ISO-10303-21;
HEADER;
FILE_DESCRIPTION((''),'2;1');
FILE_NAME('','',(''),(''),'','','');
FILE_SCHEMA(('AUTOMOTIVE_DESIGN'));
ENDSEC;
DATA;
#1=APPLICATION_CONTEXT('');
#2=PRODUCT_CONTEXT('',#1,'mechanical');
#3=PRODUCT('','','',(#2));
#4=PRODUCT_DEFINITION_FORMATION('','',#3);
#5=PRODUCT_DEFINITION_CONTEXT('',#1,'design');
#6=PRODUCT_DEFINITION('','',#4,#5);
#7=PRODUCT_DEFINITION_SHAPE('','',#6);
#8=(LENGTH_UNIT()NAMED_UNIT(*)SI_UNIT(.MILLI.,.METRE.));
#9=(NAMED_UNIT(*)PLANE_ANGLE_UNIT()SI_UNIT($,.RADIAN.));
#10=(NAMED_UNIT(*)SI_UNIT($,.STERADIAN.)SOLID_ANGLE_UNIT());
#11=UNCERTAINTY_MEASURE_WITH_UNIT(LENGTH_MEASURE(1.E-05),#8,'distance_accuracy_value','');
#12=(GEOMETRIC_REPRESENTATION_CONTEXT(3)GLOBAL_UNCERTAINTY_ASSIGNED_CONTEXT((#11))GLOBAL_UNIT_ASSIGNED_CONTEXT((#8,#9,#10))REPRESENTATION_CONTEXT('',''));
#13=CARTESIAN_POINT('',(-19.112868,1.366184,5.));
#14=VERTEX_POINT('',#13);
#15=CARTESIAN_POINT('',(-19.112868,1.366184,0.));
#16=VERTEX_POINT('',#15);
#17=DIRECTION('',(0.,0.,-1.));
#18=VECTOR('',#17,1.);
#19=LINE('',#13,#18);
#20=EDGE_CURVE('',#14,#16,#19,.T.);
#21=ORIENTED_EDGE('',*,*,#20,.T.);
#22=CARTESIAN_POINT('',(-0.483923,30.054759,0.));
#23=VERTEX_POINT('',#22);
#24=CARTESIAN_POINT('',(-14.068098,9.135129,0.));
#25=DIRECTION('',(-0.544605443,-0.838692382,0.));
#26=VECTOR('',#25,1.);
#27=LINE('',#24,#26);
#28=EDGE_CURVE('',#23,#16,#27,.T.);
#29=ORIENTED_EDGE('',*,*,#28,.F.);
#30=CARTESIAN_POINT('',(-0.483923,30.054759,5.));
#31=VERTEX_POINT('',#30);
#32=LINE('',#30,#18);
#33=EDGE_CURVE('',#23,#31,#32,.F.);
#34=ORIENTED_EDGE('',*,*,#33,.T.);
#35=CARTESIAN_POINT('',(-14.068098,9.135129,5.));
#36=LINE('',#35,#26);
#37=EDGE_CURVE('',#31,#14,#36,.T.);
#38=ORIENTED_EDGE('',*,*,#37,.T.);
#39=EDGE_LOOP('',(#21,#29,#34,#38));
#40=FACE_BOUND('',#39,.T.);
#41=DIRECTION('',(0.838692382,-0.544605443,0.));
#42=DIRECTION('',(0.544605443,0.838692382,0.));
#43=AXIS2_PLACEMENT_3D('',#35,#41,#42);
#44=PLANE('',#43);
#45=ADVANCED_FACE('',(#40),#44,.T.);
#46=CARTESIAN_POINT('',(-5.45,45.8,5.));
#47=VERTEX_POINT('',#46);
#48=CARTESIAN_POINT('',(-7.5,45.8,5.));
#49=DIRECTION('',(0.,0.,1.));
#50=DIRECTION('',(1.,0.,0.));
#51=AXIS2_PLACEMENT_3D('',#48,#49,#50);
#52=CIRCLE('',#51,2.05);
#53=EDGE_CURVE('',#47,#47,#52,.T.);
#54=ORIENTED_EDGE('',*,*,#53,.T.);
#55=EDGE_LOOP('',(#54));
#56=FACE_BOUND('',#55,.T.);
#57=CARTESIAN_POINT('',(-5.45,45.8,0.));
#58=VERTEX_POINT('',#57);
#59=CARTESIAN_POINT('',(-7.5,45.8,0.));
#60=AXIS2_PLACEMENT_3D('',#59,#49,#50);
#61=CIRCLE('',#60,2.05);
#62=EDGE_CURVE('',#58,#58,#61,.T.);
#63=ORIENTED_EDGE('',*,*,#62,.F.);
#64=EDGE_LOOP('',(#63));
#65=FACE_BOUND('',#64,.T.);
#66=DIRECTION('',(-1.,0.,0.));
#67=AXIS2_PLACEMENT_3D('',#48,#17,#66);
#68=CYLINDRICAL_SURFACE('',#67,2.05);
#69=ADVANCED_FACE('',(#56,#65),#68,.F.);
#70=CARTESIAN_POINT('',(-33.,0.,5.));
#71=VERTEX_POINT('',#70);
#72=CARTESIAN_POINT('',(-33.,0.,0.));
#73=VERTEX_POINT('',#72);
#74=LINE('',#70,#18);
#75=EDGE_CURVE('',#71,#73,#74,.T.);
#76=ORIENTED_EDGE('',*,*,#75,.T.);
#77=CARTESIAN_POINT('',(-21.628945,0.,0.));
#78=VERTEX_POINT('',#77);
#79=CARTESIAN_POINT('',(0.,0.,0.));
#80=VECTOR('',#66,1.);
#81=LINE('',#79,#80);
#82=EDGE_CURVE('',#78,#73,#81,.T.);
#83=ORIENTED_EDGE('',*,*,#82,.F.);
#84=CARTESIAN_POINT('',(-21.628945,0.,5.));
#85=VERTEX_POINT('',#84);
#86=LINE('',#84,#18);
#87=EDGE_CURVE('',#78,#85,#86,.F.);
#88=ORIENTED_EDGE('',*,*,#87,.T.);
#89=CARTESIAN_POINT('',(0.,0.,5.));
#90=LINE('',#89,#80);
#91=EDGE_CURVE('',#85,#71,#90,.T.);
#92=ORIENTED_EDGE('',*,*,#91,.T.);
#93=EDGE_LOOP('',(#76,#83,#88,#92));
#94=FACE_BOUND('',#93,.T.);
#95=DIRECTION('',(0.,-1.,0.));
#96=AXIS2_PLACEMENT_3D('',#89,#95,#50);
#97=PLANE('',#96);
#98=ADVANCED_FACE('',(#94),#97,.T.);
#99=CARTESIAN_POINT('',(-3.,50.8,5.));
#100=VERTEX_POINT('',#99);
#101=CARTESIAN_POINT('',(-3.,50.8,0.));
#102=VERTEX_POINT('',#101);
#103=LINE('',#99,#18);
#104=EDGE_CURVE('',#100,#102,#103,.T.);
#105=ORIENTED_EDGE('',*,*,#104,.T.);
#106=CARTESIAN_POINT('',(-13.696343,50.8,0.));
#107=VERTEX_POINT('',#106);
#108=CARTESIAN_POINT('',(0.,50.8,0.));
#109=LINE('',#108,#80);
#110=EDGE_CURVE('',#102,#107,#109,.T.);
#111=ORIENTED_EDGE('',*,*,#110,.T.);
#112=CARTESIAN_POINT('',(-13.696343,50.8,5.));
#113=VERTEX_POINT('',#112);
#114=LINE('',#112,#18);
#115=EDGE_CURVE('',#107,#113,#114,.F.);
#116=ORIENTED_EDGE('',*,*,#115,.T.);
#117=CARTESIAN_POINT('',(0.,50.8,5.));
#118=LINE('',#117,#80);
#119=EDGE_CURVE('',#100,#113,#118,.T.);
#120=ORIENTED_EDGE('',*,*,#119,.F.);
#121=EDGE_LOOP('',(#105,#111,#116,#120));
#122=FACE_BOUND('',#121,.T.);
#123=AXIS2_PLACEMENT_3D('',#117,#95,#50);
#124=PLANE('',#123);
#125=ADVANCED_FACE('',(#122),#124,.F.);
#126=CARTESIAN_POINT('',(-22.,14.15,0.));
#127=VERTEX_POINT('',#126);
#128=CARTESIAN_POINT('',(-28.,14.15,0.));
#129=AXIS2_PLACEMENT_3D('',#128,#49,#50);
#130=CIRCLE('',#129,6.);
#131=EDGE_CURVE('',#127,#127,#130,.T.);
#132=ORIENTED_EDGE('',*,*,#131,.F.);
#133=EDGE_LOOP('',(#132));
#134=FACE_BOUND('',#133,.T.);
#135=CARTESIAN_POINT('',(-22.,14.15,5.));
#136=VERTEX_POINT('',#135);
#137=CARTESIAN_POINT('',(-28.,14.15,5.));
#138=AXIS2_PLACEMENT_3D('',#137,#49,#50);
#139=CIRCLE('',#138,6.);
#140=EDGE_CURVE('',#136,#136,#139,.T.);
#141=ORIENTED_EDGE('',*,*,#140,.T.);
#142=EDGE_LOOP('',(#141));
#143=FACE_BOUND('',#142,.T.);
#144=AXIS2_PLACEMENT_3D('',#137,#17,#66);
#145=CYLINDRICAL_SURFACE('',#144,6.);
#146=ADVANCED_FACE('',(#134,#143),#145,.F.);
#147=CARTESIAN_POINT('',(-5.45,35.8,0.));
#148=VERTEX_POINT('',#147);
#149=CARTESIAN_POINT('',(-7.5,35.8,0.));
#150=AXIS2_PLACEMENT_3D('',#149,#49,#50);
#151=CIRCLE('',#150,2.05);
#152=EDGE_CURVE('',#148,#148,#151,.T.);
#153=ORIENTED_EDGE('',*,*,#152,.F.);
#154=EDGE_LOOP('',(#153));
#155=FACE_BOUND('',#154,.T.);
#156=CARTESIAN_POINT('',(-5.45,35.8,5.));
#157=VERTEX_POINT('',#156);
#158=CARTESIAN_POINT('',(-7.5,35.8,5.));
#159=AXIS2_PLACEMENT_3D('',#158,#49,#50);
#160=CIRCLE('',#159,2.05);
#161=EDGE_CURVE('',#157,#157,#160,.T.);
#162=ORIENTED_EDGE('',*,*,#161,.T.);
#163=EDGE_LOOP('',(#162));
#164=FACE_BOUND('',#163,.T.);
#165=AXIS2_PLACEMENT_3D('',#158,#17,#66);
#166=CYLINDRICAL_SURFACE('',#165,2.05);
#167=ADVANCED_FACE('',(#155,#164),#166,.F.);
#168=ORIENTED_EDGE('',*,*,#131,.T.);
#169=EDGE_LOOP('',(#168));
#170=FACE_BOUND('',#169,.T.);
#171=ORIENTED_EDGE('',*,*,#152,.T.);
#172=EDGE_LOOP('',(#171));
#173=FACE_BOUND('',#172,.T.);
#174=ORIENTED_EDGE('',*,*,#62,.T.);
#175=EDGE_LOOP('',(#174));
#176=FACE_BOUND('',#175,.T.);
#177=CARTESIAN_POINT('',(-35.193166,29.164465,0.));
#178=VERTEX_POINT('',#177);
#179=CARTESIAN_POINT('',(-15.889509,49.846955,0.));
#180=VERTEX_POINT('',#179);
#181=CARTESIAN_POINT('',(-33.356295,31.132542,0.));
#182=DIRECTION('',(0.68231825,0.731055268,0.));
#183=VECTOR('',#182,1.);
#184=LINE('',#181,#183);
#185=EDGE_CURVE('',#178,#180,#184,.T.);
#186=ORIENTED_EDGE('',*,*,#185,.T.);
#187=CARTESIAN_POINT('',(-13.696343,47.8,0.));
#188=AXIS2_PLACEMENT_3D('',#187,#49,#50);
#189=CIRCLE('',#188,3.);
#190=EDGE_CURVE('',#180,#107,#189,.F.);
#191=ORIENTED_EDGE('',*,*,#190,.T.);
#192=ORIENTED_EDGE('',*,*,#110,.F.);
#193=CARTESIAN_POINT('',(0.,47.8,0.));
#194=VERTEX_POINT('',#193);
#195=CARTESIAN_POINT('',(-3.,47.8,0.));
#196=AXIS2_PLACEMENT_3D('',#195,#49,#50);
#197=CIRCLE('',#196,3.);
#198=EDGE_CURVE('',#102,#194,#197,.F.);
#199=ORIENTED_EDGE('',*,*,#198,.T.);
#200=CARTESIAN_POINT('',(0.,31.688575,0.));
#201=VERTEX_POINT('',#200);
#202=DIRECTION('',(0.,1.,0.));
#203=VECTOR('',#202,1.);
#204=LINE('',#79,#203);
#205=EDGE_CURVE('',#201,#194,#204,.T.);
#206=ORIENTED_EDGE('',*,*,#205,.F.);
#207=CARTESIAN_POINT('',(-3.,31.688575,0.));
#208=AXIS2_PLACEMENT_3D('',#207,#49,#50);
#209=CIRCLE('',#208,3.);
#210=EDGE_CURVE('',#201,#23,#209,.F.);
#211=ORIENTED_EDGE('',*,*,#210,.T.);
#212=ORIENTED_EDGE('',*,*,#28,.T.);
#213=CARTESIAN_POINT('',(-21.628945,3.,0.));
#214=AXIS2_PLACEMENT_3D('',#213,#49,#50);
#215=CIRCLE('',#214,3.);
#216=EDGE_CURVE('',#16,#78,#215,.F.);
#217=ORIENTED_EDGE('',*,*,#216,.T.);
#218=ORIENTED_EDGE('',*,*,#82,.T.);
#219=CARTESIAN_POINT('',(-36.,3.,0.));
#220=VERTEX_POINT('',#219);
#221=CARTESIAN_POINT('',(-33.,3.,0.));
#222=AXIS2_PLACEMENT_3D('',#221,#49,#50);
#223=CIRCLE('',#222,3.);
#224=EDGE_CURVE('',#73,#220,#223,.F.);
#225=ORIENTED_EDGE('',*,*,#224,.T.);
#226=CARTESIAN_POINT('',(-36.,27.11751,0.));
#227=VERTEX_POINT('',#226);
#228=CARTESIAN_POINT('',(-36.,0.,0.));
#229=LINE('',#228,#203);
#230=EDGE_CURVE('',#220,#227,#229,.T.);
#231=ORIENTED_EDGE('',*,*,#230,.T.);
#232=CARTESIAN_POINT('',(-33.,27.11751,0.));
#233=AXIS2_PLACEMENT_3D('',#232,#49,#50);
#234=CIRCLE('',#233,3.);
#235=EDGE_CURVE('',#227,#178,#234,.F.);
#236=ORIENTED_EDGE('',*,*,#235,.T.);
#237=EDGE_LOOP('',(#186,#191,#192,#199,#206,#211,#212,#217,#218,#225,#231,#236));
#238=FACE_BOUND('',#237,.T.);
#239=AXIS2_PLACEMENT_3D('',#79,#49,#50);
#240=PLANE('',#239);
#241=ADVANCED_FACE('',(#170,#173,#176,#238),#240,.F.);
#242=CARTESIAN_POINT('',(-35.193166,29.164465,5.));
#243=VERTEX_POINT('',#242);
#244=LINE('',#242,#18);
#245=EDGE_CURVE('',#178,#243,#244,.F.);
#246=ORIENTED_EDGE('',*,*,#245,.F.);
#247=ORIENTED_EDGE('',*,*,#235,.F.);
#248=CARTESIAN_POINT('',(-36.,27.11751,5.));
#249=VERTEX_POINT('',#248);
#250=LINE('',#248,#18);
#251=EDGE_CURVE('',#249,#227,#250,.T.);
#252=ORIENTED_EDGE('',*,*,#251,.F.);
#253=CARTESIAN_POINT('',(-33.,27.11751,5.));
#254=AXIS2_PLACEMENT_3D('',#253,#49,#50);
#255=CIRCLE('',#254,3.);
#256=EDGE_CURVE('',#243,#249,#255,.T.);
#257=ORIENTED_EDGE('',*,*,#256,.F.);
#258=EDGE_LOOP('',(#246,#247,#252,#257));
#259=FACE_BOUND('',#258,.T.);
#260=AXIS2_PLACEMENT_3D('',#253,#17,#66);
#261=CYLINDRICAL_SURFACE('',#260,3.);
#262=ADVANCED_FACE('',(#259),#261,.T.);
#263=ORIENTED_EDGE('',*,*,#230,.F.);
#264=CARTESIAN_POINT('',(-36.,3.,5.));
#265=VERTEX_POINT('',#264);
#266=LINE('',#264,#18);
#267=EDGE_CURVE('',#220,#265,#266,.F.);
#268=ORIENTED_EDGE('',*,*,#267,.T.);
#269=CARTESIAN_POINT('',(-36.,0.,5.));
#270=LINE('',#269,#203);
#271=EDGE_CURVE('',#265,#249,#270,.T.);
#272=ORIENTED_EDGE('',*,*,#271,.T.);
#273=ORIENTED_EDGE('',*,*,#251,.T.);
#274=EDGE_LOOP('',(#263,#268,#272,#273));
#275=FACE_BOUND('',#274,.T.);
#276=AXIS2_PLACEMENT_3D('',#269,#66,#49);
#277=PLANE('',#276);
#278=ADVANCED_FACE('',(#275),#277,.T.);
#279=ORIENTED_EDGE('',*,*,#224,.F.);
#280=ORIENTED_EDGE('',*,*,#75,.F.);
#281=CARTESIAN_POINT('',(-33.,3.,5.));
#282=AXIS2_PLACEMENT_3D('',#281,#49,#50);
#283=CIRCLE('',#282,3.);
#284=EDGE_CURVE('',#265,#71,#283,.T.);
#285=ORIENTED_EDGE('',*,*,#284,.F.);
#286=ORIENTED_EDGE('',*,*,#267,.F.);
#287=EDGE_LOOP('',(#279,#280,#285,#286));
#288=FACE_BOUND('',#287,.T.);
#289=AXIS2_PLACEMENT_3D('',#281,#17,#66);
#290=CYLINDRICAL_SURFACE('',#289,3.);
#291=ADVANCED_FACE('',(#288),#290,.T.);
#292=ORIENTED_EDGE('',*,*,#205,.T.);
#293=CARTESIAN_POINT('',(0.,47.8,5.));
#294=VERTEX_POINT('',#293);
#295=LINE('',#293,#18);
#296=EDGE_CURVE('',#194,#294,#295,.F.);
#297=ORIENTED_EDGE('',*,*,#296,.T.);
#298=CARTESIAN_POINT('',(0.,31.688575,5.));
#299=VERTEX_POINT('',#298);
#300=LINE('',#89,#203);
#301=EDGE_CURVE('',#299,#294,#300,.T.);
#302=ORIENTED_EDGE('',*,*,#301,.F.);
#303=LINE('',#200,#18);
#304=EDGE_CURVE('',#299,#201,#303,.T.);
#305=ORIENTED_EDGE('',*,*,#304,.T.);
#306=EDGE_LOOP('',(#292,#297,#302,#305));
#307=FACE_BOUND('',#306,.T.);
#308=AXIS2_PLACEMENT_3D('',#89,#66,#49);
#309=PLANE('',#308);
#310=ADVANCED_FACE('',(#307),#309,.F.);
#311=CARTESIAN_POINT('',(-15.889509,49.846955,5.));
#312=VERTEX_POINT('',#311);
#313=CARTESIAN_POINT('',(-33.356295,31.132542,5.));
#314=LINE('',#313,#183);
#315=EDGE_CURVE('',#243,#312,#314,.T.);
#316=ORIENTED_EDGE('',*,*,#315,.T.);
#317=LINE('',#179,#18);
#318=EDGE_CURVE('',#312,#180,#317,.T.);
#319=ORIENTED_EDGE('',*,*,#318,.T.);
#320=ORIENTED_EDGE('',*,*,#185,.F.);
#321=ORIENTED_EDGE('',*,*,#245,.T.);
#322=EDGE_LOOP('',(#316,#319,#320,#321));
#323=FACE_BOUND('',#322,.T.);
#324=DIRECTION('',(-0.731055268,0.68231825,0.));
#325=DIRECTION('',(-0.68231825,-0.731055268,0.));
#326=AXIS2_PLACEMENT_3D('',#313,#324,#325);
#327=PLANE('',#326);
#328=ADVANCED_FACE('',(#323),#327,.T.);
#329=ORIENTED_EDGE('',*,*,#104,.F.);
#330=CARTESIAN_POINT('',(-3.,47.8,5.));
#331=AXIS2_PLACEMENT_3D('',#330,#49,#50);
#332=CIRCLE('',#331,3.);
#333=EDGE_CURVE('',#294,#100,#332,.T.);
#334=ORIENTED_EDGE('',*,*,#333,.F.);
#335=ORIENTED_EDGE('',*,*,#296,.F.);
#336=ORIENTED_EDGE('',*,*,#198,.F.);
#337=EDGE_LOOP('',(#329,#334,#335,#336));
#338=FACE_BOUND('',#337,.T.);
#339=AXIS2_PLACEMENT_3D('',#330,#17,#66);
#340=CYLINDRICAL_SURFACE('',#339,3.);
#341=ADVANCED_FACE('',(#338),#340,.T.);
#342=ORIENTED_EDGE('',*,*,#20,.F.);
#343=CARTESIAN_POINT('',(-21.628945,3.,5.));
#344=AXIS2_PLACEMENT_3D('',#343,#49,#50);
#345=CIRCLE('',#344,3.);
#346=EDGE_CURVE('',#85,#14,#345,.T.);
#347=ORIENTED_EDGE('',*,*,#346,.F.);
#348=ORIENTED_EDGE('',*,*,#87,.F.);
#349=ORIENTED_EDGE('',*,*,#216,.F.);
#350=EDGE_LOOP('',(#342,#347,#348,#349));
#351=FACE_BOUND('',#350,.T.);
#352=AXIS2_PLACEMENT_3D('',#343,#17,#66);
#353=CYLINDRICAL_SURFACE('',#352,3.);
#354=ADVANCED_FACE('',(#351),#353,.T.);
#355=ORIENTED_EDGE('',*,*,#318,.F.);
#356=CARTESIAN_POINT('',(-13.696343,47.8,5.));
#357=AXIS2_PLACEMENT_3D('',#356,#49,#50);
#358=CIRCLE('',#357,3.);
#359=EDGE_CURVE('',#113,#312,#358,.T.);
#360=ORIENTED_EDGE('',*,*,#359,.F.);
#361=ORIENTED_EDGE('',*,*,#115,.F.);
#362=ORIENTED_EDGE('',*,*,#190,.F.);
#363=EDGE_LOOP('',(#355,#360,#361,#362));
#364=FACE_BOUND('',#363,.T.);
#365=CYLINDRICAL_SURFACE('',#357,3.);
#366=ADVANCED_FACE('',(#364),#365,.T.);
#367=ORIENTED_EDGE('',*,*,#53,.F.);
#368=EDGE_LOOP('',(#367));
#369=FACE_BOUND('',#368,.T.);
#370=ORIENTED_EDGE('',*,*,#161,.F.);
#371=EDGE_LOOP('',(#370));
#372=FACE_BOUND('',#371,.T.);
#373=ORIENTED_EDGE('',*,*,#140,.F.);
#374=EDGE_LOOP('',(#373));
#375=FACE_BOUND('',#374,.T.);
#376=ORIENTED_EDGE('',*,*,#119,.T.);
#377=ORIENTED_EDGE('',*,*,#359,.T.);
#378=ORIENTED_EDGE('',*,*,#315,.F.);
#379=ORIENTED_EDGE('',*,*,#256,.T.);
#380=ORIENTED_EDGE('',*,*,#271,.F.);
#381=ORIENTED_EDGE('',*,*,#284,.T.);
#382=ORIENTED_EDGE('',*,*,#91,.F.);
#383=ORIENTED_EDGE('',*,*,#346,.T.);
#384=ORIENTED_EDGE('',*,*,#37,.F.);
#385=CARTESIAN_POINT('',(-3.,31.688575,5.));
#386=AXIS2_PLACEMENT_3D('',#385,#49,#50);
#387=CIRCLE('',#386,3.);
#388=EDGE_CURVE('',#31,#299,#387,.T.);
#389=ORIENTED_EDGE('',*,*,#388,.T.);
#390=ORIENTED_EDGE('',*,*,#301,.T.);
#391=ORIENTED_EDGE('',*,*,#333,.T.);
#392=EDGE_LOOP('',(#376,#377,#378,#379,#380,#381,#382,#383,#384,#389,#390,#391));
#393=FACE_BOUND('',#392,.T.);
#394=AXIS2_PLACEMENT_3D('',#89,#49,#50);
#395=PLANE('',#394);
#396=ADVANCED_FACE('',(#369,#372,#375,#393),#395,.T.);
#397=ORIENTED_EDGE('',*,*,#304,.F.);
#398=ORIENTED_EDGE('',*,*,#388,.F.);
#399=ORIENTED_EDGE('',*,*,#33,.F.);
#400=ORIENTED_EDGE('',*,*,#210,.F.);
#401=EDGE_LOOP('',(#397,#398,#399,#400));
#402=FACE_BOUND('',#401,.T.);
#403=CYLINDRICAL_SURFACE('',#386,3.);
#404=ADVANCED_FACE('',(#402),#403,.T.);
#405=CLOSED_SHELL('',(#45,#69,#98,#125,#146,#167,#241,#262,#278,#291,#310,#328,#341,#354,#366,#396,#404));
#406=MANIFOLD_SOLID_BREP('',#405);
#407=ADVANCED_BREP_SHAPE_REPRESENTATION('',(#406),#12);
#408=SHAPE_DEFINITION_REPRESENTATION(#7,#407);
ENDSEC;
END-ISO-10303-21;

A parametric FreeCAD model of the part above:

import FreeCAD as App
import Part
import Sketcher

V = App.Vector


def edges_at(feature, points):
    """Names of the edges that pass closest to the given points."""
    edges = feature.Shape.Edges
    near = lambda p: min(range(len(edges)), key=lambda i: edges[i].distToShape(Part.Vertex(*p))[0])
    return sorted({f"Edge{near(p) + 1}" for p in points})

doc = App.newDocument("Part")
body = doc.addObject("PartDesign::Body", "Body")

# Sketch on XY plane
sketch1 = doc.addObject("Sketcher::SketchObject", "Sketch")
body.addObject(sketch1)
sketch1.AttachmentSupport = (doc.XY_Plane, [""])
sketch1.MapMode = "FlatFace"
sketch1.addGeometry([
    Part.LineSegment(V(-36, 0, 0), V(-20, 0, 0)),  # 0
    Part.LineSegment(V(-20, 0, 0), V(0, 30.8, 0)),  # 1
    Part.LineSegment(V(0, 30.8, 0), V(0, 50.8, 0)),  # 2
    Part.LineSegment(V(0, 50.8, 0), V(-15, 50.8, 0)),  # 3
    Part.LineSegment(V(-15, 50.8, 0), V(-36, 28.3, 0)),  # 4
    Part.LineSegment(V(-36, 28.3, 0), V(-36, 0, 0)),  # 5
    Part.Circle(V(-28, 14.2, 0), V(0, 0, 1), 6),  # 6
    Part.Circle(V(-7.5, 35.8, 0), V(0, 0, 1), 2),  # 7
    Part.Circle(V(-7.5, 45.8, 0), V(0, 0, 1), 2),  # 8
], False)
sketch1.addConstraint([
    Sketcher.Constraint("Coincident", 0, 2, 1, 1),
    Sketcher.Constraint("Coincident", 1, 2, 2, 1),
    Sketcher.Constraint("Coincident", 2, 2, 3, 1),
    Sketcher.Constraint("Coincident", 3, 2, 4, 1),
    Sketcher.Constraint("Coincident", 4, 2, 5, 1),
    Sketcher.Constraint("Coincident", 5, 2, 0, 1),
    Sketcher.Constraint("Horizontal", 0),
    Sketcher.Constraint("Vertical", 2),
    Sketcher.Constraint("Horizontal", 3),
    Sketcher.Constraint("Vertical", 5),
    Sketcher.Constraint("Equal", 7, 8),
    Sketcher.Constraint("PointOnObject", 0, 2, -1),
    Sketcher.Constraint("PointOnObject", 1, 2, -2),
    Sketcher.Constraint("Vertical", 7, 3, 8, 3),
    Sketcher.Constraint("Diameter", 6, 12.0),
    Sketcher.Constraint("Diameter", 7, 4.1),
    Sketcher.Constraint("DistanceX", 0, 1, 0, 2, 16.0),
    Sketcher.Constraint("DistanceX", 3, 2, 3, 1, 15.0),
    Sketcher.Constraint("DistanceY", 2, 1, 2, 2, 20.0),
    Sketcher.Constraint("DistanceY", 5, 2, 5, 1, 28.3),
    Sketcher.Constraint("DistanceX", 6, 3, -1, 1, 28.0),
    Sketcher.Constraint("DistanceX", 0, 2, -1, 1, 20.0),
    Sketcher.Constraint("DistanceY", 7, 3, 8, 3, 10.0),
    Sketcher.Constraint("DistanceY", 1, 2, 7, 3, 5.0),
    Sketcher.Constraint("DistanceX", 7, 3, -1, 1, 7.5),
    Sketcher.Constraint("DistanceY", -1, 1, 7, 3, 35.8),
    Sketcher.Constraint("DistanceY", -1, 1, 6, 3, 14.15),
])
pad1 = doc.addObject("PartDesign::Pad", "Pad")
body.addObject(pad1)
pad1.Profile = sketch1
pad1.Length = 5
doc.recompute()

fillet = doc.addObject("PartDesign::Fillet", "Fillet")
body.addObject(fillet)
fillet.Base = (pad1, edges_at(pad1, [
    (-15, 50.8, 2.5),
    (0, 50.8, 2.5),
    (0, 30.8, 2.5),
    (-20, 0, 2.5),
    (-36, 0, 2.5),
    (-36, 28.3, 2.5),
]))
fillet.Radius = 3

doc.recompute()
